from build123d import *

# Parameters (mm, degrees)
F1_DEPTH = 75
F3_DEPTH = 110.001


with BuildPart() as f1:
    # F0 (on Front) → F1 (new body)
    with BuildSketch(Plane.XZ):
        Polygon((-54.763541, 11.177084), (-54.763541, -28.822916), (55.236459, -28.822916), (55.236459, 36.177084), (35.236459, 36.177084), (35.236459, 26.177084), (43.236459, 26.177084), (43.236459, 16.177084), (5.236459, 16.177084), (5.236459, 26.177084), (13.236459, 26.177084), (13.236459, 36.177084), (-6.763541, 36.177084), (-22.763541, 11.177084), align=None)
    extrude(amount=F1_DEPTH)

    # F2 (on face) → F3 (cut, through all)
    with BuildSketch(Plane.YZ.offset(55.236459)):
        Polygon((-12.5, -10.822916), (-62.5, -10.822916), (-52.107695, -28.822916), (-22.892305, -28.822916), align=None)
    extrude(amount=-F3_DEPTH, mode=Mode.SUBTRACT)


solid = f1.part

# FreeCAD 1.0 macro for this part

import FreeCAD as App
import Part
import Sketcher
Q = App.Units.Quantity


def add_polygon(sketch, points):
    """Adds a closed chain of lines whose ends are joined by coincident constraints."""
    first, n = sketch.GeometryCount, len(points)
    for a, b in zip(points, points[1:] + points[:1]):
        sketch.addGeometry(Part.LineSegment(App.Vector(*a, 0), App.Vector(*b, 0)), False)
    for i in range(n):
        sketch.addConstraint(Sketcher.Constraint("Coincident", first + i, 2, first + (i + 1) % n, 1))

doc = App.newDocument("Part")
body = doc.addObject("PartDesign::Body", "Body")

# Sketch on XZ plane
sketch1 = doc.addObject("Sketcher::SketchObject", "Sketch")
body.addObject(sketch1)
sketch1.AttachmentSupport = (doc.XZ_Plane, [""])
sketch1.MapMode = "FlatFace"
add_polygon(sketch1, [(-54.763541, 11.177084), (-54.763541, -28.822916), (55.236459, -28.822916), (55.236459, 36.177084), (35.236459, 36.177084), (35.236459, 26.177084), (43.236459, 26.177084), (43.236459, 16.177084), (5.236459, 16.177084), (5.236459, 26.177084), (13.236459, 26.177084), (13.236459, 36.177084), (-6.763541, 36.177084), (-22.763541, 11.177084)])  # lines 0-13
sketch1.addConstraint(Sketcher.Constraint("Vertical", 0))
sketch1.addConstraint(Sketcher.Constraint("Horizontal", 1))
sketch1.addConstraint(Sketcher.Constraint("Vertical", 2))
sketch1.addConstraint(Sketcher.Constraint("Horizontal", 3))
sketch1.addConstraint(Sketcher.Constraint("Vertical", 4))
sketch1.addConstraint(Sketcher.Constraint("Horizontal", 5))
sketch1.addConstraint(Sketcher.Constraint("Vertical", 6))
sketch1.addConstraint(Sketcher.Constraint("Horizontal", 7))
sketch1.addConstraint(Sketcher.Constraint("Vertical", 8))
sketch1.addConstraint(Sketcher.Constraint("Horizontal", 9))
sketch1.addConstraint(Sketcher.Constraint("Vertical", 10))
sketch1.addConstraint(Sketcher.Constraint("Horizontal", 11))
sketch1.addConstraint(Sketcher.Constraint("Horizontal", 13))
sketch1.addConstraint(Sketcher.Constraint("Horizontal", 5, 2, 8, 2))
sketch1.addConstraint(Sketcher.Constraint("Horizontal", 3, 2, 10, 2))
sketch1.addConstraint(Sketcher.Constraint("Equal", 5, 9))
sketch1.addConstraint(Sketcher.Constraint("Equal", 3, 11))
sketch1.addConstraint(Sketcher.Constraint("Equal", 4, 6))
sketch1.addConstraint(Sketcher.Constraint("DistanceX", 1, 1, 1, 2, Q("110 mm")))
sketch1.addConstraint(Sketcher.Constraint("DistanceX", 3, 2, 3, 1, Q("20 mm")))
sketch1.addConstraint(Sketcher.Constraint("DistanceX", 5, 1, 5, 2, Q("8 mm")))
sketch1.addConstraint(Sketcher.Constraint("DistanceX", 7, 2, 7, 1, Q("38 mm")))
sketch1.addConstraint(Sketcher.Constraint("DistanceX", 13, 2, 13, 1, Q("32 mm")))
sketch1.addConstraint(Sketcher.Constraint("DistanceY", 0, 2, 0, 1, Q("40 mm")))
sketch1.addConstraint(Sketcher.Constraint("DistanceY", 2, 1, 2, 2, Q("65 mm")))
sketch1.addConstraint(Sketcher.Constraint("DistanceY", 4, 2, 4, 1, Q("10 mm")))
sketch1.addConstraint(Sketcher.Constraint("DistanceX", 0, 2, -1, 1, Q("54.763541 mm")))
sketch1.addConstraint(Sketcher.Constraint("DistanceY", 0, 2, -1, 1, Q("28.822916 mm")))
pad1 = doc.addObject("PartDesign::Pad", "Pad")
body.addObject(pad1)
pad1.Profile = sketch1
pad1.Length = 75

# Sketch on YZ plane
sketch2 = doc.addObject("Sketcher::SketchObject", "Sketch001")
body.addObject(sketch2)
sketch2.AttachmentSupport = (doc.YZ_Plane, [""])
sketch2.MapMode = "FlatFace"
sketch2.AttachmentOffset = App.Placement(App.Vector(0, 0, 55.236459), App.Rotation())
add_polygon(sketch2, [(-12.5, -10.822916), (-62.5, -10.822916), (-52.107695, -28.822916), (-22.892305, -28.822916)])  # lines 0-3
sketch2.addConstraint(Sketcher.Constraint("Horizontal", 0))
sketch2.addConstraint(Sketcher.Constraint("Horizontal", 2))
sketch2.addConstraint(Sketcher.Constraint("Equal", 1, 3))
sketch2.addConstraint(Sketcher.Constraint("DistanceX", 0, 2, 0, 1, Q("50 mm")))
sketch2.addConstraint(Sketcher.Constraint("Angle", 1, Q("-60 deg")))
sketch2.addConstraint(Sketcher.Constraint("DistanceY", 1, 2, 0, 2, Q("18 mm")))
sketch2.addConstraint(Sketcher.Constraint("DistanceX", 0, 2, -1, 1, Q("62.5 mm")))
sketch2.addConstraint(Sketcher.Constraint("DistanceY", 0, 2, -1, 1, Q("10.822916 mm")))
pocket1 = doc.addObject("PartDesign::Pocket", "Pocket")
body.addObject(pocket1)
pocket1.Profile = sketch2
pocket1.Type = "ThroughAll"

doc.recompute()
